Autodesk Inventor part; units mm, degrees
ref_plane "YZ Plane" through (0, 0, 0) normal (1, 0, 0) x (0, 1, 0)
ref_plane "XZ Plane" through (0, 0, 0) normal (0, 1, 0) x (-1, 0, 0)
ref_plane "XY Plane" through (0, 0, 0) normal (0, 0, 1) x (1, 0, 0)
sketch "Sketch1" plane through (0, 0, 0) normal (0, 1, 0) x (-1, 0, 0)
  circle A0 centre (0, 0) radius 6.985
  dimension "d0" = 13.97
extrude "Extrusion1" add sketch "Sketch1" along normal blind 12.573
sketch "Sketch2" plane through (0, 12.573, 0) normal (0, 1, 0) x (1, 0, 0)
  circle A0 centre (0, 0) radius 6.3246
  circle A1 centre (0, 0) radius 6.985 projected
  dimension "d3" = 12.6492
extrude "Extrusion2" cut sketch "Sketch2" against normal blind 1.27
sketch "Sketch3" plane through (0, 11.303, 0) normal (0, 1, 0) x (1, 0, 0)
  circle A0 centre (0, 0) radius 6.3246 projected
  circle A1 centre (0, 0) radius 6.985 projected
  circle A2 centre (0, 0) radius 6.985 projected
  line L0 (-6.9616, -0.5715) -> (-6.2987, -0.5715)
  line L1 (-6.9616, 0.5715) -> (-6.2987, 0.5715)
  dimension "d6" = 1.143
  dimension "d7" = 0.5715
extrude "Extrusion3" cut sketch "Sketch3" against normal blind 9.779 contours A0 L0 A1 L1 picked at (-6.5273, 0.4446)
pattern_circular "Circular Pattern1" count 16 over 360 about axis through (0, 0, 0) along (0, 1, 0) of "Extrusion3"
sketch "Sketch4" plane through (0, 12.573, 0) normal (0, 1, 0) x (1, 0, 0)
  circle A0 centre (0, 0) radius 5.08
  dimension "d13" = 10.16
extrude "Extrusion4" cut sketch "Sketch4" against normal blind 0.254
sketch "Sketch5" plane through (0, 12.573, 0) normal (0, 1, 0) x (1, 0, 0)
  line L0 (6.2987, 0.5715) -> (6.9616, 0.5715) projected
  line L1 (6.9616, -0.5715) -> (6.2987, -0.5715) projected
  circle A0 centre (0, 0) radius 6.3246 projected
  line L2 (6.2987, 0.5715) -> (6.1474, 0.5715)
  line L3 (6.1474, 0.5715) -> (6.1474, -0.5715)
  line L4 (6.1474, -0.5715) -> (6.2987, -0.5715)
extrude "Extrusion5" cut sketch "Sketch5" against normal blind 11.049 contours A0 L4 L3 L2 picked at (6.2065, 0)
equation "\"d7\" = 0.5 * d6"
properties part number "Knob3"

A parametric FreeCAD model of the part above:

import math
import FreeCAD as App
import Part
import Sketcher
from FreeCAD import Vector
Q = App.Units.Quantity

doc = App.newDocument("Part")
params = doc.addObject("Spreadsheet::Sheet", "Params")
for row, (alias, value) in enumerate([
    ("sketch1_diameter", "0.55 in"),
    ("pad1_length", "0.495 in"),
    ("sketch2_diameter", "0.498 in"),
    ("sketch2_diameter2", "0.55 in"),
    ("pocket1_length", "0.05 in"),
    ("sketch3_radius", "0.249 in"),
    ("sketch3_radius2", "0.275 in"),
    ("pocket2_length", "0.385 in"),
    ("sketch4_diameter", "0.4 in"),
    ("pocket3_length", "0.01 in"),
    ("sketch5_radius", "0.249 in"),
    ("sketch5_height", "0.045 in"),
    ("pocket4_length", "0.435 in"),
], start=1):
    params.set(f"A{row}", alias)
    params.set(f"B{row}", "=" + value)
    params.setAlias(f"B{row}", alias)

body = doc.addObject("PartDesign::Body", "Body")

# Sketch on XZ plane
sketch1 = body.newObject("Sketcher::SketchObject", "Sketch")
sketch1.AttachmentSupport = (doc.getObject("XZ_Plane"), [""])
sketch1.MapMode = "FlatFace"
sketch1.addGeometry(Part.Circle(Vector(0, 0, 0), Vector(0, 0, 1), 7), False)
sketch1.addConstraint([
    Sketcher.Constraint("Coincident", 0, 3, -1, 1),
    Sketcher.Constraint("Diameter", 0, Q("0.55 in")),
])
sketch1.setExpression("Constraints[1]", "Params.sketch1_diameter")
pad1 = body.newObject("PartDesign::Pad", "Pad")
pad1.Profile = sketch1
pad1.setExpression("Length", "Params.pad1_length")
pad1.Reversed = True

# Sketch on XZ plane
sketch2 = body.newObject("Sketcher::SketchObject", "Sketch001")
sketch2.AttachmentSupport = (doc.getObject("XZ_Plane"), [""])
sketch2.MapMode = "FlatFace"
sketch2.AttachmentOffset = App.Placement(Vector(0, 0, -0.495 * 25.4), App.Rotation())
sketch2.addGeometry([
    Part.Circle(Vector(0, 0, 0), Vector(0, 0, 1), 7),
    Part.Circle(Vector(0, 0, 0), Vector(0, 0, 1), 6),
], False)
sketch2.addConstraint([
    Sketcher.Constraint("Coincident", 0, 3, -1, 1),
    Sketcher.Constraint("Coincident", 1, 3, -1, 1),
    Sketcher.Constraint("Diameter", 1, Q("0.498 in")),
    Sketcher.Constraint("Diameter", 0, Q("0.55 in")),
])
sketch2.setExpression("Constraints[2]", "Params.sketch2_diameter")
sketch2.setExpression("Constraints[3]", "Params.sketch2_diameter2")
pocket1 = body.newObject("PartDesign::Pocket", "Pocket")
pocket1.Profile = sketch2
pocket1.setExpression("Length", "Params.pocket1_length")
pocket1.Reversed = True

# Sketch on XZ plane
sketch3 = body.newObject("Sketcher::SketchObject", "Sketch002")
sketch3.AttachmentSupport = (doc.getObject("XZ_Plane"), [""])
sketch3.MapMode = "FlatFace"
sketch3.AttachmentOffset = App.Placement(Vector(0, 0, -0.445 * 25.4), App.Rotation())
sketch3.addGeometry([
    Part.ArcOfCircle(Part.Circle(Vector(0, 0, 0), Vector(0, 0, 1), 6.3), math.radians(174.82), math.radians(185.18)),
    Part.LineSegment(Vector(-6.3, -0.6, 0), Vector(-7, -0.6, 0)),
    Part.ArcOfCircle(Part.Circle(Vector(0, 0, 0), Vector(0, 0, 1), 7), math.radians(175.31), math.radians(184.69)),
    Part.LineSegment(Vector(-7, 0.6, 0), Vector(-6.3, 0.6, 0)),
], False)
sketch3.addConstraint([
    Sketcher.Constraint("Coincident", 0, 2, 1, 1),
    Sketcher.Constraint("Coincident", 1, 2, 2, 2),
    Sketcher.Constraint("Coincident", 2, 1, 3, 1),
    Sketcher.Constraint("Coincident", 3, 2, 0, 1),
    Sketcher.Constraint("Horizontal", 1),
    Sketcher.Constraint("Horizontal", 3),
    Sketcher.Constraint("Coincident", 0, 3, -1, 1),
    Sketcher.Constraint("Coincident", 2, 3, -1, 1),
    Sketcher.Constraint("Vertical", 1, 2, 2, 1),
    Sketcher.Constraint("Radius", 0, Q("0.249 in")),
    Sketcher.Constraint("Radius", 2, Q("0.275 in")),
    Sketcher.Constraint("DistanceY", 1, 2, 2, 1, Q("0.045 in")),
])
sketch3.setExpression("Constraints[9]", "Params.sketch3_radius")
sketch3.setExpression("Constraints[10]", "Params.sketch3_radius2")
pocket2 = body.newObject("PartDesign::Pocket", "Pocket001")
pocket2.Profile = sketch3
pocket2.setExpression("Length", "Params.pocket2_length")
pocket2.Reversed = True
doc.recompute()

polarpattern = body.newObject("PartDesign::PolarPattern", "PolarPattern")
polarpattern.Originals = [pocket2]
polarpattern.Axis = (doc.getObject("Y_Axis"), [""])
polarpattern.Angle = 360
polarpattern.Occurrences = 16
body.Tip = polarpattern

# Sketch on XZ plane
sketch4 = body.newObject("Sketcher::SketchObject", "Sketch003")
sketch4.AttachmentSupport = (doc.getObject("XZ_Plane"), [""])
sketch4.MapMode = "FlatFace"
sketch4.AttachmentOffset = App.Placement(Vector(0, 0, -0.495 * 25.4), App.Rotation())
sketch4.addGeometry(Part.Circle(Vector(0, 0, 0), Vector(0, 0, 1), 5), False)
sketch4.addConstraint([
    Sketcher.Constraint("Coincident", 0, 3, -1, 1),
    Sketcher.Constraint("Diameter", 0, Q("0.4 in")),
])
sketch4.setExpression("Constraints[1]", "Params.sketch4_diameter")
pocket3 = body.newObject("PartDesign::Pocket", "Pocket002")
pocket3.Profile = sketch4
pocket3.setExpression("Length", "Params.pocket3_length")
pocket3.Reversed = True

# Sketch on XZ plane
sketch5 = body.newObject("Sketcher::SketchObject", "Sketch004")
sketch5.AttachmentSupport = (doc.getObject("XZ_Plane"), [""])
sketch5.MapMode = "FlatFace"
sketch5.AttachmentOffset = App.Placement(Vector(0, 0, -0.495 * 25.4), App.Rotation())
sketch5.addGeometry([
    Part.ArcOfCircle(Part.Circle(Vector(0, 0, 0), Vector(0, 0, 1), 6.32), math.radians(-5.18), math.radians(5.18)),
    Part.LineSegment(Vector(6.3, -0.57, 0), Vector(6.15, -0.57, 0)),
    Part.LineSegment(Vector(6.15, -0.57, 0), Vector(6.15, 0.57, 0)),
    Part.LineSegment(Vector(6.15, 0.57, 0), Vector(6.3, 0.57, 0)),
], False)
sketch5.addConstraint([
    Sketcher.Constraint("Coincident", 0, 1, 1, 1),
    Sketcher.Constraint("Coincident", 1, 2, 2, 1),
    Sketcher.Constraint("Coincident", 2, 2, 3, 1),
    Sketcher.Constraint("Coincident", 3, 2, 0, 2),
    Sketcher.Constraint("Horizontal", 1),
    Sketcher.Constraint("Vertical", 2),
    Sketcher.Constraint("Horizontal", 3),
    Sketcher.Constraint("Coincident", 0, 3, -1, 1),
    Sketcher.Constraint("Vertical", 0, 1, 3, 2),
    Sketcher.Constraint("Radius", 0, Q("0.249 in")),
    Sketcher.Constraint("DistanceY", 2, 1, 2, 2, Q("0.045 in")),
    Sketcher.Constraint("DistanceX", 1, 2, 1, 1, Q("0.1513 mm")),
])
sketch5.setExpression("Constraints[9]", "Params.sketch5_radius")
sketch5.setExpression("Constraints[10]", "Params.sketch5_height")
pocket4 = body.newObject("PartDesign::Pocket", "Pocket003")
pocket4.Profile = sketch5
pocket4.setExpression("Length", "Params.pocket4_length")
pocket4.Reversed = True

doc.recompute()
